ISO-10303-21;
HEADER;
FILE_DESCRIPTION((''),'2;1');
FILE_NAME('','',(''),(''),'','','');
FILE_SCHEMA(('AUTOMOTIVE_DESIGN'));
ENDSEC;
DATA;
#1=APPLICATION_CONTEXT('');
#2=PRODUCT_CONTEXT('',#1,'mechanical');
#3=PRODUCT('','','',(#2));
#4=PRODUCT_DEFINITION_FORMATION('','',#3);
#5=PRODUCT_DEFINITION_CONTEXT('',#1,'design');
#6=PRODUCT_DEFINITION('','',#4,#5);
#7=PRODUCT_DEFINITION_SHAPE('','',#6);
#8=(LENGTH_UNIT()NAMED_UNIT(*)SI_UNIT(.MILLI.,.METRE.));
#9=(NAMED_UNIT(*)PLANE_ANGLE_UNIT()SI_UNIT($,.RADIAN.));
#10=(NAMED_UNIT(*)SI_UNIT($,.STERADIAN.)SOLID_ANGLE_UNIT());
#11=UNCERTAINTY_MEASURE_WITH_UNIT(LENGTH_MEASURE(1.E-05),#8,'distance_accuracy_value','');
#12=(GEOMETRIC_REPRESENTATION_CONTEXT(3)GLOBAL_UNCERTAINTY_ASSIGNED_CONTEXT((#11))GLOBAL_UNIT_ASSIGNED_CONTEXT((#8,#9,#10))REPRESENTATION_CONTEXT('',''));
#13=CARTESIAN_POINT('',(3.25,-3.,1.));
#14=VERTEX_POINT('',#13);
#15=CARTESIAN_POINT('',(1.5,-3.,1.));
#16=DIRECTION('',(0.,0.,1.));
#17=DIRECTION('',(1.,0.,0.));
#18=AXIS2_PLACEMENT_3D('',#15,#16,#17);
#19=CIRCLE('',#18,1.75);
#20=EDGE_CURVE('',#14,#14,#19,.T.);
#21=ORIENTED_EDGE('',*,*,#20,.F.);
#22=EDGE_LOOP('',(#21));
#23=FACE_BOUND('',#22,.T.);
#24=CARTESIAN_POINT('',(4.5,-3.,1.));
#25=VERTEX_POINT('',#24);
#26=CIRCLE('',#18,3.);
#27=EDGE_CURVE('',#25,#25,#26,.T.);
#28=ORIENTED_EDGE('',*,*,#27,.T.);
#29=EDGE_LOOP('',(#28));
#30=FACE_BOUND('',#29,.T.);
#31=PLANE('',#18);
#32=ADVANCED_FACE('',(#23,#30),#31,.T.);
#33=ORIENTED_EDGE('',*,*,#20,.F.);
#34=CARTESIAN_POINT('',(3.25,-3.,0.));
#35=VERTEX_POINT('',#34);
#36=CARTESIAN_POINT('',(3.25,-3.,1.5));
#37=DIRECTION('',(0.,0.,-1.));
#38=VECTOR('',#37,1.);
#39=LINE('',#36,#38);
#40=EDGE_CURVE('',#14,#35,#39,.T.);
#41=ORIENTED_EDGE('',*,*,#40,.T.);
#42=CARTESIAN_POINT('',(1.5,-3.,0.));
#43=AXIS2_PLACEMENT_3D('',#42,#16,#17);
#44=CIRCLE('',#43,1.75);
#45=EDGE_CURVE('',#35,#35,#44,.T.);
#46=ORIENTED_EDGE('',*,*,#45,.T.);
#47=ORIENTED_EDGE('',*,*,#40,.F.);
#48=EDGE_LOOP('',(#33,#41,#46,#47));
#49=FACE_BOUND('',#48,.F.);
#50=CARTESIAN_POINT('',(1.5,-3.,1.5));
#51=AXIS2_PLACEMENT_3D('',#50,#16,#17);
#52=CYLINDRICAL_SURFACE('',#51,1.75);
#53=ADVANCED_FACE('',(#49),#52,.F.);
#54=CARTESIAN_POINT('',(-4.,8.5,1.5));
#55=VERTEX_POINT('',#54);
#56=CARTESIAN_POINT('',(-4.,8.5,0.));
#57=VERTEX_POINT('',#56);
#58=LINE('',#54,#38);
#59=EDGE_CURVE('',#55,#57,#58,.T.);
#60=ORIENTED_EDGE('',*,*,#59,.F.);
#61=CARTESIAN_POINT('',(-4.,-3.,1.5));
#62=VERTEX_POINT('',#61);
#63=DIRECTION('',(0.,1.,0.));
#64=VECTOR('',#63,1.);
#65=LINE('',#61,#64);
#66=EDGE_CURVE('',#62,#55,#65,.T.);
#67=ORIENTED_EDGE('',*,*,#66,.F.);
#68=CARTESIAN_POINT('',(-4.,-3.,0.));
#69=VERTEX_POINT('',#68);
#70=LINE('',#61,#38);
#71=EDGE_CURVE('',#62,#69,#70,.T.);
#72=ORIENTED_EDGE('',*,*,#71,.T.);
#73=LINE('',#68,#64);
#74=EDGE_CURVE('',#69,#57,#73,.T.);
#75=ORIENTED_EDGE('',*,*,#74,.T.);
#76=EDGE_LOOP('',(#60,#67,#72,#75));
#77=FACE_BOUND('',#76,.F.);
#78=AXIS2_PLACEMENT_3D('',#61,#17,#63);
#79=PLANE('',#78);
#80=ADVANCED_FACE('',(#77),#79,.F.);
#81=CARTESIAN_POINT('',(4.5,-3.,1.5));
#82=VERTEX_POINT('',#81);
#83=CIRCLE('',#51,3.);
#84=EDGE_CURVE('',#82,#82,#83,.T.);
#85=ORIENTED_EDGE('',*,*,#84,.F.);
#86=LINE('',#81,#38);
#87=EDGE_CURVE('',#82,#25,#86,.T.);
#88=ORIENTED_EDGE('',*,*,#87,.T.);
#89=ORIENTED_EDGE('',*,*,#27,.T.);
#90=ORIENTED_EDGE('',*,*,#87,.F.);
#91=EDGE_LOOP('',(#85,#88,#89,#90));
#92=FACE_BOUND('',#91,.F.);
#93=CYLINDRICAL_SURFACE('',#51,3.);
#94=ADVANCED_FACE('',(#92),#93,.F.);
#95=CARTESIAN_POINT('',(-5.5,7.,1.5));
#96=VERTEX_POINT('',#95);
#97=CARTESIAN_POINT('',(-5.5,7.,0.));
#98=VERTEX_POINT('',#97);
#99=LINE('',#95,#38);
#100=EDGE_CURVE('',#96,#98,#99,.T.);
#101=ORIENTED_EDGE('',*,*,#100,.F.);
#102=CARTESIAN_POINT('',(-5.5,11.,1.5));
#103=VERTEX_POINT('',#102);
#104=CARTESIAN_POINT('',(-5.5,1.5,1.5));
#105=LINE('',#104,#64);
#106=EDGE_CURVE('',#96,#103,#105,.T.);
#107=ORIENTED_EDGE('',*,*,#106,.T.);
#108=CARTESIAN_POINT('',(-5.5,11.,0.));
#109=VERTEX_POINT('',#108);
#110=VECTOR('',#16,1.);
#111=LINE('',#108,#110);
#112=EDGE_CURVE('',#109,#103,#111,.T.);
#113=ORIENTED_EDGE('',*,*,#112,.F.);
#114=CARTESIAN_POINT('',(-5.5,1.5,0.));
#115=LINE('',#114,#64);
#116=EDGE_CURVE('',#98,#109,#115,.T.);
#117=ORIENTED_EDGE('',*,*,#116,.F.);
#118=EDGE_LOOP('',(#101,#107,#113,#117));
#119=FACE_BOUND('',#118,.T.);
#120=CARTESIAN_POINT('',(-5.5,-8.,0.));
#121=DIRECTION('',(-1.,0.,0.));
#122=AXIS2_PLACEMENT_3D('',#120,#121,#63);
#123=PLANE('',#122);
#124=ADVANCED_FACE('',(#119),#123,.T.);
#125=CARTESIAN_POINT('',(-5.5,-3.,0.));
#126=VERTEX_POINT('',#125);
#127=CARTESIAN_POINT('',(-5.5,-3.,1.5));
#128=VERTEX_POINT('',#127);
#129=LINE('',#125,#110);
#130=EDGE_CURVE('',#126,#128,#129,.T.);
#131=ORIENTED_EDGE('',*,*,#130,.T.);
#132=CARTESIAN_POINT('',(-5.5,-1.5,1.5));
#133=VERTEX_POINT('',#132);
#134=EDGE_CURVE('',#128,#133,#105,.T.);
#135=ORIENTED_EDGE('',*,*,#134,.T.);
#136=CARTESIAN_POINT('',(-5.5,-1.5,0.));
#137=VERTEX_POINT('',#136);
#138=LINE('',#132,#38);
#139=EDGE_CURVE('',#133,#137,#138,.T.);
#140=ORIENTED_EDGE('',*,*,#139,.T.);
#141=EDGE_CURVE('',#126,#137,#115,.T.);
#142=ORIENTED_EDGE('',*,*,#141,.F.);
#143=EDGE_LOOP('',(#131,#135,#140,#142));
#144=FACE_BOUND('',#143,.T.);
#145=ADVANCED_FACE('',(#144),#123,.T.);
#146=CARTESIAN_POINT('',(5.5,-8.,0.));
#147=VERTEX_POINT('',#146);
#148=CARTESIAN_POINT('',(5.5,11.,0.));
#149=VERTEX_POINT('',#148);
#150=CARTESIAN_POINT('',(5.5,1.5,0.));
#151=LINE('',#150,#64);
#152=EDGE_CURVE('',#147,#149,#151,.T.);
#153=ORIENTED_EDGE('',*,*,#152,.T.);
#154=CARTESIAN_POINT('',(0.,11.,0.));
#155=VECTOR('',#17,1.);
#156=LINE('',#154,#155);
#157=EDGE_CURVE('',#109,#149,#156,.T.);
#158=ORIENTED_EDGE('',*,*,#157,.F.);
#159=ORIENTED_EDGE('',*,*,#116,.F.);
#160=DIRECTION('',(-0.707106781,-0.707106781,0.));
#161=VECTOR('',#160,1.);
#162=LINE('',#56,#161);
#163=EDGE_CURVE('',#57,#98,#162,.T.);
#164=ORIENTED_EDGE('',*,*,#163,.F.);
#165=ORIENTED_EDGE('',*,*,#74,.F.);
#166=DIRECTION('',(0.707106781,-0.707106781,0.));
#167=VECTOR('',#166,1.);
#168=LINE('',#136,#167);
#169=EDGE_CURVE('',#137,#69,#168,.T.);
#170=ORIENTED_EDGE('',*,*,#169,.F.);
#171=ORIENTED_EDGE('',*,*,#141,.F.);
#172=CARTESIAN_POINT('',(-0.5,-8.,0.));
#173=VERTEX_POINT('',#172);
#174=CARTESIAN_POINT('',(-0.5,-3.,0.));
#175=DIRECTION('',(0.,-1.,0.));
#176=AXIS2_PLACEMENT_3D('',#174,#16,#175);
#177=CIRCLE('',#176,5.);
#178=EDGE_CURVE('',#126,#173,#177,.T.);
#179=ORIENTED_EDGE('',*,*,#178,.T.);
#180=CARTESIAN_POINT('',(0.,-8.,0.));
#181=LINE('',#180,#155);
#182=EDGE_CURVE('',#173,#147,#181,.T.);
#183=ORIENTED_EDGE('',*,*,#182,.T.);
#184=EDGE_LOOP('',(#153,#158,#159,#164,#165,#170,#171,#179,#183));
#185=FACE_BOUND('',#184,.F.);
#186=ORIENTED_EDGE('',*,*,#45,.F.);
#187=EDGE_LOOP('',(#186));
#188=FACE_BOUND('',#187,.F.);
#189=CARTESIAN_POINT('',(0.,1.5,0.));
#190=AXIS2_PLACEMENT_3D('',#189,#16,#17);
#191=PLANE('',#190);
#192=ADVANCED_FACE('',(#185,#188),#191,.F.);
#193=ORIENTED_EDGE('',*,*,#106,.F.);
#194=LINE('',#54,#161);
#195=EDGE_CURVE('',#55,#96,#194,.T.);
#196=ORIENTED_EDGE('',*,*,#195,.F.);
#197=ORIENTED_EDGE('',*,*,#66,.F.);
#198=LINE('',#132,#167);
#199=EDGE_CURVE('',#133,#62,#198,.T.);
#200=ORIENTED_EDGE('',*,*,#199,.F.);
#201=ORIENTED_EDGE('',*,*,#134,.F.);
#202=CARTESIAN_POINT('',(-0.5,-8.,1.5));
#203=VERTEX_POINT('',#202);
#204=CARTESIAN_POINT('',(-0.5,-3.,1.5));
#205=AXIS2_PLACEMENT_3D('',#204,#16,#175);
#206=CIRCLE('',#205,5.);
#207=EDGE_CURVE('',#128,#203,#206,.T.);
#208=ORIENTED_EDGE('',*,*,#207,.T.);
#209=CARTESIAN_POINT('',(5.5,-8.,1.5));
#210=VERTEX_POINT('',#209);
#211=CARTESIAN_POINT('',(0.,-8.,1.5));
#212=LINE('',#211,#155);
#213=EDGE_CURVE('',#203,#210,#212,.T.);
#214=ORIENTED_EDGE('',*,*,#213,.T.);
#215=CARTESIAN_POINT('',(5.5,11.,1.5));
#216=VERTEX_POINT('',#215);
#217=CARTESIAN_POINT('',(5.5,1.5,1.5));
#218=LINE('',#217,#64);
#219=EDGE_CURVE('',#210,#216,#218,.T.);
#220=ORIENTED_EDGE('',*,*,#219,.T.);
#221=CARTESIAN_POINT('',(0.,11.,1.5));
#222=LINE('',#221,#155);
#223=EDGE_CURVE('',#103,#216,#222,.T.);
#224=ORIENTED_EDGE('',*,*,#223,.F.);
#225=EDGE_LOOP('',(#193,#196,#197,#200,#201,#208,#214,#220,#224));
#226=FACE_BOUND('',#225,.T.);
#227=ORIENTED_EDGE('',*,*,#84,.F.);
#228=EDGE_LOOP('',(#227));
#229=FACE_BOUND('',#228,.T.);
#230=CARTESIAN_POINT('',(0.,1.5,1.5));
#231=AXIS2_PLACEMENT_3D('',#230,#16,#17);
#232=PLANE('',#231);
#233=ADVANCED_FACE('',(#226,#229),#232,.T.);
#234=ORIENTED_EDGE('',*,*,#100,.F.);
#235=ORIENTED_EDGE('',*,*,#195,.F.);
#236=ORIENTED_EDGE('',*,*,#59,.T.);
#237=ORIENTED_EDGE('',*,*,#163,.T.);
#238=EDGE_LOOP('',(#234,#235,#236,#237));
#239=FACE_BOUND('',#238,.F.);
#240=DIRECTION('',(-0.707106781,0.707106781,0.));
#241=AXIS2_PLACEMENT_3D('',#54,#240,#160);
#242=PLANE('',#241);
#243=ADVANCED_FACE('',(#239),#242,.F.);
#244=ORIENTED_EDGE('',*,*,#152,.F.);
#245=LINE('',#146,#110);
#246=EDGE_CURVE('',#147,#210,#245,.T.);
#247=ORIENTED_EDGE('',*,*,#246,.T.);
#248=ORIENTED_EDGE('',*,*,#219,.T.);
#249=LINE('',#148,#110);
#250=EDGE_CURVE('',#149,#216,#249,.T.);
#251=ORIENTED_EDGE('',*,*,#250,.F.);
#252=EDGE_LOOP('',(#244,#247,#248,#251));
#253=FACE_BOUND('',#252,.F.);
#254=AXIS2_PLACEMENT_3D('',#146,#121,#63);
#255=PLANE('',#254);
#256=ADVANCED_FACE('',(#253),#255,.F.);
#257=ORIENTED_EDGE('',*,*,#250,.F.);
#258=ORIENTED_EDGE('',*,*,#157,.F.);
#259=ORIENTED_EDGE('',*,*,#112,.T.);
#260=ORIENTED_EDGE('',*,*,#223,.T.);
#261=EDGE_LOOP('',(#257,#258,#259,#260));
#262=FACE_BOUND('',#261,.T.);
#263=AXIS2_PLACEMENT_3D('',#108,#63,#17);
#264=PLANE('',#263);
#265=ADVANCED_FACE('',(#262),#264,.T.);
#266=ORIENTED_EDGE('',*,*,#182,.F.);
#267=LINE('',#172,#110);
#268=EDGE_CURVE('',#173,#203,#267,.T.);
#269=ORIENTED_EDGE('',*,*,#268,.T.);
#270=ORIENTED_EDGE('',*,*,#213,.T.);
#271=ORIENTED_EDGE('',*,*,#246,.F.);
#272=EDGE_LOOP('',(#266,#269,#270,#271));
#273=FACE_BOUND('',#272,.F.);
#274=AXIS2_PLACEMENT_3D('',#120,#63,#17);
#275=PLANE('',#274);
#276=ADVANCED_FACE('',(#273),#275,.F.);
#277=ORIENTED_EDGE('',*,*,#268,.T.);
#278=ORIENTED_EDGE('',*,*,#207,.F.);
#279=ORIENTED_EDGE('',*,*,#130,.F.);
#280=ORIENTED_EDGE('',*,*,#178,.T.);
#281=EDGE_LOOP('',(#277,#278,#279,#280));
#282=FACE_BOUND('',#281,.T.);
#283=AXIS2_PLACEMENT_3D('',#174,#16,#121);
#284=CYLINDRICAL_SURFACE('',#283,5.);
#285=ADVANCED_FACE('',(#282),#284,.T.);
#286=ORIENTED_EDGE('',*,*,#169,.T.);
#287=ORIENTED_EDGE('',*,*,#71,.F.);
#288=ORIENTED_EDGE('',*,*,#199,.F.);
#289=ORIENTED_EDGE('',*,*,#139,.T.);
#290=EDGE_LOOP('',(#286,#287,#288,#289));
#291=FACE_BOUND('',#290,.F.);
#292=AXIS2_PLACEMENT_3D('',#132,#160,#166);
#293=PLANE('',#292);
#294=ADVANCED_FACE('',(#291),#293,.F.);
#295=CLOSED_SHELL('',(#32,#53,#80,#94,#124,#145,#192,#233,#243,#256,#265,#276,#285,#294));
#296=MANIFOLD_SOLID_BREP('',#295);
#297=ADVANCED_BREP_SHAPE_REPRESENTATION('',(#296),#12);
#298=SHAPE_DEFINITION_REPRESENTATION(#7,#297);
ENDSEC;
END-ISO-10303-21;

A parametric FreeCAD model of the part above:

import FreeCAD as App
import Part
import Sketcher
Q = App.Units.Quantity


def edges_at(feature, points):
    """Names of the edges that pass closest to the given points."""
    edges = feature.Shape.Edges
    near = lambda p: min(range(len(edges)), key=lambda i: edges[i].distToShape(Part.Vertex(*p))[0])
    return sorted({f"Edge{near(p) + 1}" for p in points})

doc = App.newDocument("Part")
body = doc.addObject("PartDesign::Body", "Body")

# Sketch on XY plane
sketch1 = doc.addObject("Sketcher::SketchObject", "Sketch")
body.addObject(sketch1)
sketch1.AttachmentSupport = (doc.XY_Plane, [""])
sketch1.MapMode = "FlatFace"
sketch1.addGeometry([
    Part.LineSegment(App.Vector(-5.5, 11, 0), App.Vector(-5.5, -8, 0)),
    Part.LineSegment(App.Vector(-5.5, -8, 0), App.Vector(5.5, -8, 0)),
    Part.LineSegment(App.Vector(5.5, -8, 0), App.Vector(5.5, 11, 0)),
    Part.LineSegment(App.Vector(5.5, 11, 0), App.Vector(-5.5, 11, 0)),
], False)
sketch1.addConstraint([
    Sketcher.Constraint("Coincident", 0, 2, 1, 1),
    Sketcher.Constraint("Coincident", 1, 2, 2, 1),
    Sketcher.Constraint("Coincident", 2, 2, 3, 1),
    Sketcher.Constraint("Coincident", 3, 2, 0, 1),
    Sketcher.Constraint("Vertical", 0),
    Sketcher.Constraint("Horizontal", 1),
    Sketcher.Constraint("Vertical", 2),
    Sketcher.Constraint("Horizontal", 3),
    Sketcher.Constraint("DistanceX", 1, 1, 1, 2, Q("11 mm")),
    Sketcher.Constraint("DistanceY", 0, 2, 0, 1, Q("19 mm")),
    Sketcher.Constraint("DistanceY", 0, 2, -1, 1, Q("8 mm")),
    Sketcher.Constraint("DistanceX", 0, 2, -1, 1, Q("5.5 mm")),
])
pad1 = doc.addObject("PartDesign::Pad", "Pad")
body.addObject(pad1)
pad1.Profile = sketch1
pad1.Length = 1.5

# Sketch on XY plane
sketch2 = doc.addObject("Sketcher::SketchObject", "Sketch001")
body.addObject(sketch2)
sketch2.AttachmentSupport = (doc.XY_Plane, [""])
sketch2.MapMode = "FlatFace"
sketch2.AttachmentOffset = App.Placement(App.Vector(0, 0, 1.5), App.Rotation())
sketch2.addGeometry(Part.Circle(App.Vector(1.5, -3, 0), App.Vector(0, 0, 1), 1.75), False)
sketch2.addConstraint([
    Sketcher.Constraint("Diameter", 0, Q("3.5 mm")),
    Sketcher.Constraint("DistanceY", 0, 3, -1, 1, Q("3 mm")),
    Sketcher.Constraint("DistanceX", -1, 1, 0, 3, Q("1.5 mm")),
])
pocket1 = doc.addObject("PartDesign::Pocket", "Pocket")
body.addObject(pocket1)
pocket1.Profile = sketch2
pocket1.Length = 1.5

# Sketch on XY plane
sketch3 = doc.addObject("Sketcher::SketchObject", "Sketch002")
body.addObject(sketch3)
sketch3.AttachmentSupport = (doc.XY_Plane, [""])
sketch3.MapMode = "FlatFace"
sketch3.AttachmentOffset = App.Placement(App.Vector(0, 0, 1.5), App.Rotation())
sketch3.addGeometry(Part.Circle(App.Vector(1.5, -3, 0), App.Vector(0, 0, 1), 3), False)
sketch3.addConstraint([
    Sketcher.Constraint("Diameter", 0, Q("6 mm")),
    Sketcher.Constraint("DistanceY", 0, 3, -1, 1, Q("3 mm")),
    Sketcher.Constraint("DistanceX", -1, 1, 0, 3, Q("1.5 mm")),
])
pocket2 = doc.addObject("PartDesign::Pocket", "Pocket001")
body.addObject(pocket2)
pocket2.Profile = sketch3
pocket2.Length = 0.5

# Sketch on XY plane
sketch4 = doc.addObject("Sketcher::SketchObject", "Sketch003")
body.addObject(sketch4)
sketch4.AttachmentSupport = (doc.XY_Plane, [""])
sketch4.MapMode = "FlatFace"
sketch4.AttachmentOffset = App.Placement(App.Vector(0, 0, 1.5), App.Rotation())
sketch4.addGeometry([
    Part.LineSegment(App.Vector(-4, 8.5, 0), App.Vector(-5.5, 7, 0)),
    Part.LineSegment(App.Vector(-5.5, 7, 0), App.Vector(-5.5, -1.5, 0)),
    Part.LineSegment(App.Vector(-5.5, -1.5, 0), App.Vector(-4, -3, 0)),
    Part.LineSegment(App.Vector(-4, -3, 0), App.Vector(-4, 8.5, 0)),
], False)
sketch4.addConstraint([
    Sketcher.Constraint("Coincident", 0, 2, 1, 1),
    Sketcher.Constraint("Coincident", 1, 2, 2, 1),
    Sketcher.Constraint("Coincident", 2, 2, 3, 1),
    Sketcher.Constraint("Coincident", 3, 2, 0, 1),
    Sketcher.Constraint("Vertical", 1),
    Sketcher.Constraint("Vertical", 3),
    Sketcher.Constraint("Perpendicular", 0, 2),
    Sketcher.Constraint("Equal", 0, 2),
    Sketcher.Constraint("DistanceY", 1, 2, 1, 1, Q("8.5 mm")),
    Sketcher.Constraint("DistanceY", 3, 1, 3, 2, Q("11.5 mm")),
    Sketcher.Constraint("DistanceY", -1, 1, 0, 2, Q("7 mm")),
    Sketcher.Constraint("DistanceX", 2, 2, -1, 1, Q("4 mm")),
])
pocket3 = doc.addObject("PartDesign::Pocket", "Pocket002")
body.addObject(pocket3)
pocket3.Profile = sketch4
pocket3.Length = 1.5
doc.recompute()

fillet = doc.addObject("PartDesign::Fillet", "Fillet")
body.addObject(fillet)
fillet.Base = (pocket3, edges_at(pocket3, [(-5.5, -8, 0.75)]))
fillet.Radius = 5

doc.recompute()
